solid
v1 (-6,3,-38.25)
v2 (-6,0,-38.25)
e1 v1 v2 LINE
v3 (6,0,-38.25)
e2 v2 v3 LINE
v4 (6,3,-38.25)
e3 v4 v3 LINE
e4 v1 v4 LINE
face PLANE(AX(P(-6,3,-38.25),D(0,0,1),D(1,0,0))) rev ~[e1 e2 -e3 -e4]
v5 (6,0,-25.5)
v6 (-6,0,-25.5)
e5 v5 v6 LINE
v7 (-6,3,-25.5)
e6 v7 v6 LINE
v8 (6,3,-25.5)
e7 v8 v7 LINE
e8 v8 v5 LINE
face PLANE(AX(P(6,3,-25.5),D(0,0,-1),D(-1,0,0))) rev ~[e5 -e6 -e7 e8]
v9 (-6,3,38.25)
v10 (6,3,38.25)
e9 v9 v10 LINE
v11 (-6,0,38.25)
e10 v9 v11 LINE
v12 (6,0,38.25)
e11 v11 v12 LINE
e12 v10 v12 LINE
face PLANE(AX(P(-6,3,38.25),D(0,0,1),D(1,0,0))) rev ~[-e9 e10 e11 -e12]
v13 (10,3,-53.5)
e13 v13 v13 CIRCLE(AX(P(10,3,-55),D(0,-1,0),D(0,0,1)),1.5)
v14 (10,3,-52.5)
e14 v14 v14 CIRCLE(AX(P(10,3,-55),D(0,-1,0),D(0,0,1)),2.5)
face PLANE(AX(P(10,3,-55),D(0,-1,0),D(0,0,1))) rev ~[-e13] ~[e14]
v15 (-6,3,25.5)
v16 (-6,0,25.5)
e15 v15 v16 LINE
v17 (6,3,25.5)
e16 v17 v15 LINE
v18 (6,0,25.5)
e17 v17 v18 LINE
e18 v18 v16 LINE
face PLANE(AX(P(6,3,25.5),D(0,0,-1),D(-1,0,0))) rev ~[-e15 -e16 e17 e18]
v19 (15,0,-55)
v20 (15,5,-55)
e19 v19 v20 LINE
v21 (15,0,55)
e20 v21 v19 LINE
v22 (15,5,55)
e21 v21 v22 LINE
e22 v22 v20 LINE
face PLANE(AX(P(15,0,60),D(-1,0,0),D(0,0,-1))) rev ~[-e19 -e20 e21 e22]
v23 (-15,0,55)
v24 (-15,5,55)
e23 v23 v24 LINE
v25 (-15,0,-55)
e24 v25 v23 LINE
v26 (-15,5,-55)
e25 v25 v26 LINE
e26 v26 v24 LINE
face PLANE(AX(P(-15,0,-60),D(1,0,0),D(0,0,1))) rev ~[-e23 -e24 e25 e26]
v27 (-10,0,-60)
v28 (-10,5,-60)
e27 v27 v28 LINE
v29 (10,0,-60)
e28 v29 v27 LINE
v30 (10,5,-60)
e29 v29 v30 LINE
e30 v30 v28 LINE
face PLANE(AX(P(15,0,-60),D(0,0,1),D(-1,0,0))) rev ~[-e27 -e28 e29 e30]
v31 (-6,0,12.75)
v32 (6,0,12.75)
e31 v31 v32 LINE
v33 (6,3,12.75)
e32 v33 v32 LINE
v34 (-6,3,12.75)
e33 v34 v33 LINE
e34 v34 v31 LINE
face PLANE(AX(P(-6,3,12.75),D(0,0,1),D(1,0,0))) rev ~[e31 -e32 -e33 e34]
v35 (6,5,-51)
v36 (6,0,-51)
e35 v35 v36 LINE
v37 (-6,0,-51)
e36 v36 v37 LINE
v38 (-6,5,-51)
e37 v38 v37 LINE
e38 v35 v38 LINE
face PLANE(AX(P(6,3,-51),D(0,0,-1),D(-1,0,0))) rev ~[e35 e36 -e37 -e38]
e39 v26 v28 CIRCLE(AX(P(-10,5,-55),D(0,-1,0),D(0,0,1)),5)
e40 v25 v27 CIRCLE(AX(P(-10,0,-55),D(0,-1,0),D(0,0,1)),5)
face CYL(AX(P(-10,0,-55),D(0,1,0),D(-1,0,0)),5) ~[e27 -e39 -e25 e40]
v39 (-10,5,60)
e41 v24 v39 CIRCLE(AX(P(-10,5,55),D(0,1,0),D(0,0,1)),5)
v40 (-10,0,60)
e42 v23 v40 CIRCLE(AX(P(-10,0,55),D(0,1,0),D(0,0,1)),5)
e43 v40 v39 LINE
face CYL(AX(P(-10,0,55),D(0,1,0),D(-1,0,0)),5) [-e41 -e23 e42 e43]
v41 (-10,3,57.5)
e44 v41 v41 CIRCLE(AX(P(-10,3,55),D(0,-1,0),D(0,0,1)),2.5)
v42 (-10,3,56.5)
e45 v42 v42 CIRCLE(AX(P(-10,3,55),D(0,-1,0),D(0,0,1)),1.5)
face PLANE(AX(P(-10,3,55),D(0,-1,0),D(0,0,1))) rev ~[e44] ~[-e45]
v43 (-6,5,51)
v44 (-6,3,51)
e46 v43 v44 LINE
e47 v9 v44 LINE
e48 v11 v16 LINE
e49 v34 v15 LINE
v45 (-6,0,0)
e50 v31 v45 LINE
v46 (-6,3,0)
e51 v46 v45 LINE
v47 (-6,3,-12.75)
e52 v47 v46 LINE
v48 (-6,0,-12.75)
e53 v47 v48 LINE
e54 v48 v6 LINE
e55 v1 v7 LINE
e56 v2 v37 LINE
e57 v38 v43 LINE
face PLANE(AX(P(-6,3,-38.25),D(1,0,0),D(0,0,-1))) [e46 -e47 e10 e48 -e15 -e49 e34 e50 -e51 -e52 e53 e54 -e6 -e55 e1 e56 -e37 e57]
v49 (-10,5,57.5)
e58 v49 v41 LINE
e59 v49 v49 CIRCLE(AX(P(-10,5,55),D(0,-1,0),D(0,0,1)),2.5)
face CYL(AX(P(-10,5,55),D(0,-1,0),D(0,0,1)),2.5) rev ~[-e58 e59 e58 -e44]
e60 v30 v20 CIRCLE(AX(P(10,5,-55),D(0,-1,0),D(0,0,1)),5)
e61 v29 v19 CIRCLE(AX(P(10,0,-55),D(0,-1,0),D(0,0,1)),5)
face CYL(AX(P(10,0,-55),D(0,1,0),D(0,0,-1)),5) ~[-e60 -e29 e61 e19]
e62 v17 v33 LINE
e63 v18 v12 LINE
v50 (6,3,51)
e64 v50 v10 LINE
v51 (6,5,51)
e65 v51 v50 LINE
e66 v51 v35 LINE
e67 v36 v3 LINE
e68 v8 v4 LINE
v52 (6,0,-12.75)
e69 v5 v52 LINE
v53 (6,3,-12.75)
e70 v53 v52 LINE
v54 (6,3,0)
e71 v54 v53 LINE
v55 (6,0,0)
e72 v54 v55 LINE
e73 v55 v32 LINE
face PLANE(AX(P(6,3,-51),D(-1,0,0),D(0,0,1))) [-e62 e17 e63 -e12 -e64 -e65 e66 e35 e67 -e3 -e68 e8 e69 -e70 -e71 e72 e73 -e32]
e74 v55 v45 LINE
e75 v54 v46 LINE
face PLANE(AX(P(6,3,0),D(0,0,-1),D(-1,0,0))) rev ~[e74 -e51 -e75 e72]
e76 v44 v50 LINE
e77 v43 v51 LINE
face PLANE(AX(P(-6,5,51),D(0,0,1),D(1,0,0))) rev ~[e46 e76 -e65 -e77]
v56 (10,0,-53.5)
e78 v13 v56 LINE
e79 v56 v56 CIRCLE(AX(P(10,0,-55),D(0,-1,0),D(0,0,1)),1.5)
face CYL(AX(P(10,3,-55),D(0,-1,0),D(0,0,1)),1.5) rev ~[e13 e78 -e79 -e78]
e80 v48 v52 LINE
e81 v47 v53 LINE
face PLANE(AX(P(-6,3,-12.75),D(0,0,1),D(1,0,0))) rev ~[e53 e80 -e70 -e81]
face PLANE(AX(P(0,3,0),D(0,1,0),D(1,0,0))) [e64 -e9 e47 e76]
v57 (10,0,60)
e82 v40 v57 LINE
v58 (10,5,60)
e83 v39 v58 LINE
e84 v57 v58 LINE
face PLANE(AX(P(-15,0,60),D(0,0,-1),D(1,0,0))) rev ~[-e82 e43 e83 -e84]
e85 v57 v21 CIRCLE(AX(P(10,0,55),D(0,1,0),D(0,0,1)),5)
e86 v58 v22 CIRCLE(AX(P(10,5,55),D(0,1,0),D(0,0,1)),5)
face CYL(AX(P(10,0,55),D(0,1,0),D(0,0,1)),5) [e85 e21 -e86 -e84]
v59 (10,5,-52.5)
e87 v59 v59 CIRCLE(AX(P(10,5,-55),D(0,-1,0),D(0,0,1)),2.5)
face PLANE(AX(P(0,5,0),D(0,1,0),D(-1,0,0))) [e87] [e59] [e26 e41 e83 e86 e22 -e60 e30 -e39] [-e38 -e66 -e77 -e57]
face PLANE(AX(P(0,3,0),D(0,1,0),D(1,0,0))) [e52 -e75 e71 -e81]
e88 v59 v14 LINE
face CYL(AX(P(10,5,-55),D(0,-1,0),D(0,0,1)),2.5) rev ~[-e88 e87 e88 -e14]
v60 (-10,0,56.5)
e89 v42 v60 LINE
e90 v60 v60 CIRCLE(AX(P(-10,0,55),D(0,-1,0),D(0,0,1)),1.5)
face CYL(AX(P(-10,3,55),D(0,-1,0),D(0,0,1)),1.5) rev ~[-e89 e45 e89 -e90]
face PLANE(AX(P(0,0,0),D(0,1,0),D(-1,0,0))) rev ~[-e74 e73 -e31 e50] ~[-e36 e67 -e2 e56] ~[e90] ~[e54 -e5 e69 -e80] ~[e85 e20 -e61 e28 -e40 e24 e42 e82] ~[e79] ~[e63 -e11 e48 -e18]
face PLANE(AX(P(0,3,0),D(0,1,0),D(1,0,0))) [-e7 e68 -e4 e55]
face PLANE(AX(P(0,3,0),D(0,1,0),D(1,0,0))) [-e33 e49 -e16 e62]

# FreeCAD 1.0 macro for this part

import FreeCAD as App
import Part
import Sketcher


def edges_at(feature, points):
    """Names of the edges that pass closest to the given points."""
    edges = feature.Shape.Edges
    near = lambda p: min(range(len(edges)), key=lambda i: edges[i].distToShape(Part.Vertex(*p))[0])
    return sorted({f"Edge{near(p) + 1}" for p in points})

doc = App.newDocument("Part")
params = doc.addObject("Spreadsheet::Sheet", "Params")
for row, (alias, value) in enumerate([
    ("sketch1_width", "30 mm"),
    ("sketch1_height", "120 mm"),
    ("pad1_length", "5 mm"),
    ("sketch2_width", "12 mm"),
    ("sketch2_height", "102 mm"),
    ("pocket1_length", "2 mm"),
    ("sketch3_height", "12.75 mm"),
    ("sketch3_width", "12 mm"),
    ("fillet_radius", "5 mm"),
    ("sketch4_diameter", "3 mm"),
    ("hole_diameter", "3 mm"),
    ("hole_cbore_diameter", "5 mm"),
    ("hole_cbore_depth", "2 mm"),
], start=1):
    params.set(f"A{row}", alias)
    params.set(f"B{row}", "=" + value)
    params.setAlias(f"B{row}", alias)

body = doc.addObject("PartDesign::Body", "Body")

# Sketch on XZ plane
sketch1 = body.newObject("Sketcher::SketchObject", "Sketch")
sketch1.AttachmentSupport = (doc.getObject("XZ_Plane"), [""])
sketch1.MapMode = "FlatFace"
sketch1.addGeometry([
    Part.LineSegment(App.Vector(-15, -60, 0), App.Vector(-15, 60, 0)),
    Part.LineSegment(App.Vector(-15, 60, 0), App.Vector(15, 60, 0)),
    Part.LineSegment(App.Vector(15, 60, 0), App.Vector(15, -60, 0)),
    Part.LineSegment(App.Vector(15, -60, 0), App.Vector(-15, -60, 0)),
], False)
sketch1.addConstraint([
    Sketcher.Constraint("Coincident", 0, 2, 1, 1),
    Sketcher.Constraint("Coincident", 1, 2, 2, 1),
    Sketcher.Constraint("Coincident", 2, 2, 3, 1),
    Sketcher.Constraint("Coincident", 3, 2, 0, 1),
    Sketcher.Constraint("Vertical", 0),
    Sketcher.Constraint("Horizontal", 1),
    Sketcher.Constraint("Vertical", 2),
    Sketcher.Constraint("Horizontal", 3),
    Sketcher.Constraint("Symmetric", 0, 2, 2, 2, -1, 1),
    Sketcher.Constraint("DistanceX", 1, 1, 1, 2, 30.0),
    Sketcher.Constraint("DistanceY", 0, 1, 0, 2, 120.0),
])
sketch1.setExpression("Constraints[9]", "Params.sketch1_width")
sketch1.setExpression("Constraints[10]", "Params.sketch1_height")
pad1 = body.newObject("PartDesign::Pad", "Pad")
pad1.Profile = sketch1
pad1.setExpression("Length", "Params.pad1_length")
pad1.Reversed = True

# Sketch on XZ plane
sketch2 = body.newObject("Sketcher::SketchObject", "Sketch001")
sketch2.AttachmentSupport = (doc.getObject("XZ_Plane"), [""])
sketch2.MapMode = "FlatFace"
sketch2.AttachmentOffset = App.Placement(App.Vector(0, 0, -5), App.Rotation())
sketch2.addGeometry([
    Part.LineSegment(App.Vector(-6, -51, 0), App.Vector(-6, 51, 0)),
    Part.LineSegment(App.Vector(-6, 51, 0), App.Vector(6, 51, 0)),
    Part.LineSegment(App.Vector(6, 51, 0), App.Vector(6, -51, 0)),
    Part.LineSegment(App.Vector(6, -51, 0), App.Vector(-6, -51, 0)),
], False)
sketch2.addConstraint([
    Sketcher.Constraint("Coincident", 0, 2, 1, 1),
    Sketcher.Constraint("Coincident", 1, 2, 2, 1),
    Sketcher.Constraint("Coincident", 2, 2, 3, 1),
    Sketcher.Constraint("Coincident", 3, 2, 0, 1),
    Sketcher.Constraint("Vertical", 0),
    Sketcher.Constraint("Horizontal", 1),
    Sketcher.Constraint("Vertical", 2),
    Sketcher.Constraint("Horizontal", 3),
    Sketcher.Constraint("Symmetric", 0, 2, 2, 2, -1, 1),
    Sketcher.Constraint("DistanceX", 1, 1, 1, 2, 12.0),
    Sketcher.Constraint("DistanceY", 0, 1, 0, 2, 102.0),
])
sketch2.setExpression("Constraints[9]", "Params.sketch2_width")
sketch2.setExpression("Constraints[10]", "Params.sketch2_height")
pocket1 = body.newObject("PartDesign::Pocket", "Pocket")
pocket1.Profile = sketch2
pocket1.setExpression("Length", "Params.pocket1_length")
pocket1.Reversed = True

# Sketch on XZ plane
sketch3 = body.newObject("Sketcher::SketchObject", "Sketch002")
sketch3.AttachmentSupport = (doc.getObject("XZ_Plane"), [""])
sketch3.MapMode = "FlatFace"
sketch3.AttachmentOffset = App.Placement(App.Vector(0, 0, -3), App.Rotation())
sketch3.addGeometry([
    Part.LineSegment(App.Vector(-6, 26, 0), App.Vector(-6, 38, 0)),  # 0
    Part.LineSegment(App.Vector(-6, 38, 0), App.Vector(6, 38, 0)),  # 1
    Part.LineSegment(App.Vector(6, 38, 0), App.Vector(6, 26, 0)),  # 2
    Part.LineSegment(App.Vector(6, 26, 0), App.Vector(-6, 26, 0)),  # 3
    Part.LineSegment(App.Vector(-6, 0, 0), App.Vector(-6, 13, 0)),  # 4
    Part.LineSegment(App.Vector(-6, 13, 0), App.Vector(6, 13, 0)),  # 5
    Part.LineSegment(App.Vector(6, 13, 0), App.Vector(6, 0, 0)),  # 6
    Part.LineSegment(App.Vector(6, 0, 0), App.Vector(-6, 0, 0)),  # 7
    Part.LineSegment(App.Vector(-6, -26, 0), App.Vector(-6, -13, 0)),  # 8
    Part.LineSegment(App.Vector(-6, -13, 0), App.Vector(6, -13, 0)),  # 9
    Part.LineSegment(App.Vector(6, -13, 0), App.Vector(6, -26, 0)),  # 10
    Part.LineSegment(App.Vector(6, -26, 0), App.Vector(-6, -26, 0)),  # 11
    Part.LineSegment(App.Vector(-6, -51, 0), App.Vector(-6, -38, 0)),  # 12
    Part.LineSegment(App.Vector(-6, -38, 0), App.Vector(6, -38, 0)),  # 13
    Part.LineSegment(App.Vector(6, -38, 0), App.Vector(6, -51, 0)),  # 14
    Part.LineSegment(App.Vector(6, -51, 0), App.Vector(-6, -51, 0)),  # 15
], False)
sketch3.addConstraint([
    Sketcher.Constraint("Coincident", 0, 2, 1, 1),
    Sketcher.Constraint("Coincident", 1, 2, 2, 1),
    Sketcher.Constraint("Coincident", 2, 2, 3, 1),
    Sketcher.Constraint("Coincident", 3, 2, 0, 1),
    Sketcher.Constraint("Coincident", 4, 2, 5, 1),
    Sketcher.Constraint("Coincident", 5, 2, 6, 1),
    Sketcher.Constraint("Coincident", 6, 2, 7, 1),
    Sketcher.Constraint("Coincident", 7, 2, 4, 1),
    Sketcher.Constraint("Coincident", 8, 2, 9, 1),
    Sketcher.Constraint("Coincident", 9, 2, 10, 1),
    Sketcher.Constraint("Coincident", 10, 2, 11, 1),
    Sketcher.Constraint("Coincident", 11, 2, 8, 1),
    Sketcher.Constraint("Coincident", 12, 2, 13, 1),
    Sketcher.Constraint("Coincident", 13, 2, 14, 1),
    Sketcher.Constraint("Coincident", 14, 2, 15, 1),
    Sketcher.Constraint("Coincident", 15, 2, 12, 1),
    Sketcher.Constraint("Vertical", 0),
    Sketcher.Constraint("Horizontal", 1),
    Sketcher.Constraint("Vertical", 2),
    Sketcher.Constraint("Horizontal", 3),
    Sketcher.Constraint("Vertical", 4),
    Sketcher.Constraint("Horizontal", 5),
    Sketcher.Constraint("Vertical", 6),
    Sketcher.Constraint("Horizontal", 7),
    Sketcher.Constraint("Vertical", 8),
    Sketcher.Constraint("Horizontal", 9),
    Sketcher.Constraint("Vertical", 10),
    Sketcher.Constraint("Horizontal", 11),
    Sketcher.Constraint("Vertical", 12),
    Sketcher.Constraint("Horizontal", 13),
    Sketcher.Constraint("Vertical", 14),
    Sketcher.Constraint("Horizontal", 15),
    Sketcher.Constraint("Symmetric", 6, 2, 7, 2, -1, 1),
    Sketcher.Constraint("Symmetric", 5, 2, 8, 2, -1, 1),
    Sketcher.Constraint("Symmetric", 3, 2, 10, 2, -1, 1),
    Sketcher.Constraint("Symmetric", 1, 2, 12, 2, -1, 1),
    Sketcher.Constraint("Vertical", 3, 2, 4, 2),
    Sketcher.Constraint("Vertical", 2, 2, 5, 2),
    Sketcher.Constraint("Vertical", 10, 2, 13, 2),
    Sketcher.Constraint("Equal", 2, 4),
    Sketcher.Constraint("Equal", 6, 8),
    Sketcher.Constraint("Equal", 10, 12),
    Sketcher.Constraint("DistanceY", 0, 1, 0, 2, 12.75),
    Sketcher.Constraint("DistanceX", 1, 1, 1, 2, 12.0),
])
sketch3.setExpression("Constraints[42]", "Params.sketch3_height")
sketch3.setExpression("Constraints[43]", "Params.sketch3_width")
pocket2 = body.newObject("PartDesign::Pocket", "Pocket001")
pocket2.Profile = sketch3
pocket2.Type = "ThroughAll"
pocket2.Reversed = True
doc.recompute()

fillet = body.newObject("PartDesign::Fillet", "Fillet")
fillet.Base = (pocket2, edges_at(pocket2, [
    (15, 2.5, 60),
    (15, 2.5, -60),
    (-15, 2.5, -60),
    (-15, 2.5, 60),
]))
fillet.setExpression("Radius", "Params.fillet_radius")

# Sketch on XZ plane
sketch4 = body.newObject("Sketcher::SketchObject", "Sketch003")
sketch4.AttachmentSupport = (doc.getObject("XZ_Plane"), [""])
sketch4.MapMode = "FlatFace"
sketch4.AttachmentOffset = App.Placement(App.Vector(0, 0, -5), App.Rotation())
sketch4.addGeometry([
    Part.Circle(App.Vector(-10, 55, 0), App.Vector(0, 0, 1), 1.5),
    Part.Circle(App.Vector(10, -55, 0), App.Vector(0, 0, 1), 1.5),
], False)
sketch4.addConstraint([
    Sketcher.Constraint("Equal", 0, 1),
    Sketcher.Constraint("Symmetric", 0, 3, 1, 3, -1, 1),
    Sketcher.Constraint("Diameter", 0, 3.0),
    Sketcher.Constraint("DistanceX", 0, 3, -1, 1, 10.0),
    Sketcher.Constraint("DistanceY", -1, 1, 0, 3, 55.0),
])
sketch4.setExpression("Constraints[2]", "Params.sketch4_diameter")
doc.recompute()
hole = body.newObject("PartDesign::Hole", "Hole")
hole.Profile = sketch4
hole.ThreadType = "None"
hole.setExpression("Diameter", "Params.hole_diameter")
hole.DepthType = "ThroughAll"
hole.HoleCutType = "Counterbore"
hole.setExpression("HoleCutDiameter", "Params.hole_cbore_diameter")
hole.setExpression("HoleCutDepth", "Params.hole_cbore_depth")
hole.Reversed = True

doc.recompute()
